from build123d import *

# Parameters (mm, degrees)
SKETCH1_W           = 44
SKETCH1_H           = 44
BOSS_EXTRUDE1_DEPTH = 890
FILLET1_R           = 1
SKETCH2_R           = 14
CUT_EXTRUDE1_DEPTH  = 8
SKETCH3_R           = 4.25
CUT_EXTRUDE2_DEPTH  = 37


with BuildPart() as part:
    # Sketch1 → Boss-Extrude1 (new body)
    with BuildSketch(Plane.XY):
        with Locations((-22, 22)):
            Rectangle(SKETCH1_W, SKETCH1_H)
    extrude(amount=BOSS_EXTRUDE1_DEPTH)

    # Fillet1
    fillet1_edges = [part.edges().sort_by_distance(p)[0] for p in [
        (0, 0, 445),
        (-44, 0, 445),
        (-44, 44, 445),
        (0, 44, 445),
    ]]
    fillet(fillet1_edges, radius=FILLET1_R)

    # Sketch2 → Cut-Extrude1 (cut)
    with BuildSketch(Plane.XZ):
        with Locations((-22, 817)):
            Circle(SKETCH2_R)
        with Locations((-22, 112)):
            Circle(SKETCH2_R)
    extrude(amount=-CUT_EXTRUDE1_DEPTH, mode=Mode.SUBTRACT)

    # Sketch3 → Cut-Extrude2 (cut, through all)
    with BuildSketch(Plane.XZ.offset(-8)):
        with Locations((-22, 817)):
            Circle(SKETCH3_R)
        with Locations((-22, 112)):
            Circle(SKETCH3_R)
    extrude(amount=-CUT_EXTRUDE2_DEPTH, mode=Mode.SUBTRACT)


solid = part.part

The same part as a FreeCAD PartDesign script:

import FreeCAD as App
import Part
import Sketcher
from FreeCAD import Vector


def edges_at(feature, points):
    """Names of the edges that pass closest to the given points."""
    edges = feature.Shape.Edges
    near = lambda p: min(range(len(edges)), key=lambda i: edges[i].distToShape(Part.Vertex(*p))[0])
    return sorted({f"Edge{near(p) + 1}" for p in points})


def add_polygon(sketch, points):
    """Adds a closed chain of lines whose ends are joined by coincident constraints."""
    first, n = sketch.GeometryCount, len(points)
    for a, b in zip(points, points[1:] + points[:1]):
        sketch.addGeometry(Part.LineSegment(App.Vector(*a, 0), App.Vector(*b, 0)), False)
    for i in range(n):
        sketch.addConstraint(Sketcher.Constraint("Coincident", first + i, 2, first + (i + 1) % n, 1))

doc = App.newDocument("Part")
body = doc.addObject("PartDesign::Body", "Body")

sketch1 = body.newObject("Sketcher::SketchObject", "Sketch")
sketch1.AttachmentSupport = (doc.getObject("XY_Plane"), [""])
sketch1.MapMode = "FlatFace"
add_polygon(sketch1, [(-44, 44), (-44, 0), (0, 0), (0, 44)])
sketch1.addConstraint([
    Sketcher.Constraint("Vertical", 0),
    Sketcher.Constraint("Horizontal", 1),
    Sketcher.Constraint("Vertical", 2),
    Sketcher.Constraint("Horizontal", 3),
    Sketcher.Constraint("Coincident", 1, 2, -1, 1),
    Sketcher.Constraint("Equal", 3, 0),
    Sketcher.Constraint("DistanceX", 1, 1, 1, 2, 44.0),
])
pad1 = body.newObject("PartDesign::Pad", "Pad")
pad1.Profile = sketch1
pad1.Length = 890
doc.recompute()

fillet = body.newObject("PartDesign::Fillet", "Fillet")
fillet.Base = (pad1, edges_at(pad1, [
    (0, 0, 445),
    (-44, 0, 445),
    (-44, 44, 445),
    (0, 44, 445),
]))
fillet.Radius = 1

sketch2 = body.newObject("Sketcher::SketchObject", "Sketch001")
sketch2.AttachmentSupport = (doc.getObject("XZ_Plane"), [""])
sketch2.MapMode = "FlatFace"
sketch2.addGeometry([
    Part.Circle(Vector(-22, 817, 0), Vector(0, 0, 1), 14),
    Part.Circle(Vector(-22, 112, 0), Vector(0, 0, 1), 14),
], False)
sketch2.addConstraint([
    Sketcher.Constraint("Equal", 0, 1),
    Sketcher.Constraint("Vertical", 0, 3, 1, 3),
    Sketcher.Constraint("Diameter", 0, 28.0),
    Sketcher.Constraint("DistanceX", 0, 3, -1, 1, 22.0),
    Sketcher.Constraint("DistanceY", -1, 1, 0, 3, 817.0),
    Sketcher.Constraint("DistanceY", -1, 1, 1, 3, 112.0),
])
pocket1 = body.newObject("PartDesign::Pocket", "Pocket")
pocket1.Profile = sketch2
pocket1.Length = 8

sketch3 = body.newObject("Sketcher::SketchObject", "Sketch002")
sketch3.AttachmentSupport = (doc.getObject("XZ_Plane"), [""])
sketch3.MapMode = "FlatFace"
sketch3.AttachmentOffset = App.Placement(Vector(0, 0, -8), App.Rotation())
sketch3.addGeometry([
    Part.Circle(Vector(-22, 817, 0), Vector(0, 0, 1), 4.2),
    Part.Circle(Vector(-22, 112, 0), Vector(0, 0, 1), 4.2),
], False)
sketch3.addConstraint([
    Sketcher.Constraint("Equal", 0, 1),
    Sketcher.Constraint("Vertical", 0, 3, 1, 3),
    Sketcher.Constraint("Diameter", 0, 8.5),
    Sketcher.Constraint("DistanceX", 0, 3, -1, 1, 22.0),
    Sketcher.Constraint("DistanceY", -1, 1, 0, 3, 817.0),
    Sketcher.Constraint("DistanceY", -1, 1, 1, 3, 112.0),
])
pocket2 = body.newObject("PartDesign::Pocket", "Pocket001")
pocket2.Profile = sketch3
pocket2.Type = "ThroughAll"

doc.recompute()
